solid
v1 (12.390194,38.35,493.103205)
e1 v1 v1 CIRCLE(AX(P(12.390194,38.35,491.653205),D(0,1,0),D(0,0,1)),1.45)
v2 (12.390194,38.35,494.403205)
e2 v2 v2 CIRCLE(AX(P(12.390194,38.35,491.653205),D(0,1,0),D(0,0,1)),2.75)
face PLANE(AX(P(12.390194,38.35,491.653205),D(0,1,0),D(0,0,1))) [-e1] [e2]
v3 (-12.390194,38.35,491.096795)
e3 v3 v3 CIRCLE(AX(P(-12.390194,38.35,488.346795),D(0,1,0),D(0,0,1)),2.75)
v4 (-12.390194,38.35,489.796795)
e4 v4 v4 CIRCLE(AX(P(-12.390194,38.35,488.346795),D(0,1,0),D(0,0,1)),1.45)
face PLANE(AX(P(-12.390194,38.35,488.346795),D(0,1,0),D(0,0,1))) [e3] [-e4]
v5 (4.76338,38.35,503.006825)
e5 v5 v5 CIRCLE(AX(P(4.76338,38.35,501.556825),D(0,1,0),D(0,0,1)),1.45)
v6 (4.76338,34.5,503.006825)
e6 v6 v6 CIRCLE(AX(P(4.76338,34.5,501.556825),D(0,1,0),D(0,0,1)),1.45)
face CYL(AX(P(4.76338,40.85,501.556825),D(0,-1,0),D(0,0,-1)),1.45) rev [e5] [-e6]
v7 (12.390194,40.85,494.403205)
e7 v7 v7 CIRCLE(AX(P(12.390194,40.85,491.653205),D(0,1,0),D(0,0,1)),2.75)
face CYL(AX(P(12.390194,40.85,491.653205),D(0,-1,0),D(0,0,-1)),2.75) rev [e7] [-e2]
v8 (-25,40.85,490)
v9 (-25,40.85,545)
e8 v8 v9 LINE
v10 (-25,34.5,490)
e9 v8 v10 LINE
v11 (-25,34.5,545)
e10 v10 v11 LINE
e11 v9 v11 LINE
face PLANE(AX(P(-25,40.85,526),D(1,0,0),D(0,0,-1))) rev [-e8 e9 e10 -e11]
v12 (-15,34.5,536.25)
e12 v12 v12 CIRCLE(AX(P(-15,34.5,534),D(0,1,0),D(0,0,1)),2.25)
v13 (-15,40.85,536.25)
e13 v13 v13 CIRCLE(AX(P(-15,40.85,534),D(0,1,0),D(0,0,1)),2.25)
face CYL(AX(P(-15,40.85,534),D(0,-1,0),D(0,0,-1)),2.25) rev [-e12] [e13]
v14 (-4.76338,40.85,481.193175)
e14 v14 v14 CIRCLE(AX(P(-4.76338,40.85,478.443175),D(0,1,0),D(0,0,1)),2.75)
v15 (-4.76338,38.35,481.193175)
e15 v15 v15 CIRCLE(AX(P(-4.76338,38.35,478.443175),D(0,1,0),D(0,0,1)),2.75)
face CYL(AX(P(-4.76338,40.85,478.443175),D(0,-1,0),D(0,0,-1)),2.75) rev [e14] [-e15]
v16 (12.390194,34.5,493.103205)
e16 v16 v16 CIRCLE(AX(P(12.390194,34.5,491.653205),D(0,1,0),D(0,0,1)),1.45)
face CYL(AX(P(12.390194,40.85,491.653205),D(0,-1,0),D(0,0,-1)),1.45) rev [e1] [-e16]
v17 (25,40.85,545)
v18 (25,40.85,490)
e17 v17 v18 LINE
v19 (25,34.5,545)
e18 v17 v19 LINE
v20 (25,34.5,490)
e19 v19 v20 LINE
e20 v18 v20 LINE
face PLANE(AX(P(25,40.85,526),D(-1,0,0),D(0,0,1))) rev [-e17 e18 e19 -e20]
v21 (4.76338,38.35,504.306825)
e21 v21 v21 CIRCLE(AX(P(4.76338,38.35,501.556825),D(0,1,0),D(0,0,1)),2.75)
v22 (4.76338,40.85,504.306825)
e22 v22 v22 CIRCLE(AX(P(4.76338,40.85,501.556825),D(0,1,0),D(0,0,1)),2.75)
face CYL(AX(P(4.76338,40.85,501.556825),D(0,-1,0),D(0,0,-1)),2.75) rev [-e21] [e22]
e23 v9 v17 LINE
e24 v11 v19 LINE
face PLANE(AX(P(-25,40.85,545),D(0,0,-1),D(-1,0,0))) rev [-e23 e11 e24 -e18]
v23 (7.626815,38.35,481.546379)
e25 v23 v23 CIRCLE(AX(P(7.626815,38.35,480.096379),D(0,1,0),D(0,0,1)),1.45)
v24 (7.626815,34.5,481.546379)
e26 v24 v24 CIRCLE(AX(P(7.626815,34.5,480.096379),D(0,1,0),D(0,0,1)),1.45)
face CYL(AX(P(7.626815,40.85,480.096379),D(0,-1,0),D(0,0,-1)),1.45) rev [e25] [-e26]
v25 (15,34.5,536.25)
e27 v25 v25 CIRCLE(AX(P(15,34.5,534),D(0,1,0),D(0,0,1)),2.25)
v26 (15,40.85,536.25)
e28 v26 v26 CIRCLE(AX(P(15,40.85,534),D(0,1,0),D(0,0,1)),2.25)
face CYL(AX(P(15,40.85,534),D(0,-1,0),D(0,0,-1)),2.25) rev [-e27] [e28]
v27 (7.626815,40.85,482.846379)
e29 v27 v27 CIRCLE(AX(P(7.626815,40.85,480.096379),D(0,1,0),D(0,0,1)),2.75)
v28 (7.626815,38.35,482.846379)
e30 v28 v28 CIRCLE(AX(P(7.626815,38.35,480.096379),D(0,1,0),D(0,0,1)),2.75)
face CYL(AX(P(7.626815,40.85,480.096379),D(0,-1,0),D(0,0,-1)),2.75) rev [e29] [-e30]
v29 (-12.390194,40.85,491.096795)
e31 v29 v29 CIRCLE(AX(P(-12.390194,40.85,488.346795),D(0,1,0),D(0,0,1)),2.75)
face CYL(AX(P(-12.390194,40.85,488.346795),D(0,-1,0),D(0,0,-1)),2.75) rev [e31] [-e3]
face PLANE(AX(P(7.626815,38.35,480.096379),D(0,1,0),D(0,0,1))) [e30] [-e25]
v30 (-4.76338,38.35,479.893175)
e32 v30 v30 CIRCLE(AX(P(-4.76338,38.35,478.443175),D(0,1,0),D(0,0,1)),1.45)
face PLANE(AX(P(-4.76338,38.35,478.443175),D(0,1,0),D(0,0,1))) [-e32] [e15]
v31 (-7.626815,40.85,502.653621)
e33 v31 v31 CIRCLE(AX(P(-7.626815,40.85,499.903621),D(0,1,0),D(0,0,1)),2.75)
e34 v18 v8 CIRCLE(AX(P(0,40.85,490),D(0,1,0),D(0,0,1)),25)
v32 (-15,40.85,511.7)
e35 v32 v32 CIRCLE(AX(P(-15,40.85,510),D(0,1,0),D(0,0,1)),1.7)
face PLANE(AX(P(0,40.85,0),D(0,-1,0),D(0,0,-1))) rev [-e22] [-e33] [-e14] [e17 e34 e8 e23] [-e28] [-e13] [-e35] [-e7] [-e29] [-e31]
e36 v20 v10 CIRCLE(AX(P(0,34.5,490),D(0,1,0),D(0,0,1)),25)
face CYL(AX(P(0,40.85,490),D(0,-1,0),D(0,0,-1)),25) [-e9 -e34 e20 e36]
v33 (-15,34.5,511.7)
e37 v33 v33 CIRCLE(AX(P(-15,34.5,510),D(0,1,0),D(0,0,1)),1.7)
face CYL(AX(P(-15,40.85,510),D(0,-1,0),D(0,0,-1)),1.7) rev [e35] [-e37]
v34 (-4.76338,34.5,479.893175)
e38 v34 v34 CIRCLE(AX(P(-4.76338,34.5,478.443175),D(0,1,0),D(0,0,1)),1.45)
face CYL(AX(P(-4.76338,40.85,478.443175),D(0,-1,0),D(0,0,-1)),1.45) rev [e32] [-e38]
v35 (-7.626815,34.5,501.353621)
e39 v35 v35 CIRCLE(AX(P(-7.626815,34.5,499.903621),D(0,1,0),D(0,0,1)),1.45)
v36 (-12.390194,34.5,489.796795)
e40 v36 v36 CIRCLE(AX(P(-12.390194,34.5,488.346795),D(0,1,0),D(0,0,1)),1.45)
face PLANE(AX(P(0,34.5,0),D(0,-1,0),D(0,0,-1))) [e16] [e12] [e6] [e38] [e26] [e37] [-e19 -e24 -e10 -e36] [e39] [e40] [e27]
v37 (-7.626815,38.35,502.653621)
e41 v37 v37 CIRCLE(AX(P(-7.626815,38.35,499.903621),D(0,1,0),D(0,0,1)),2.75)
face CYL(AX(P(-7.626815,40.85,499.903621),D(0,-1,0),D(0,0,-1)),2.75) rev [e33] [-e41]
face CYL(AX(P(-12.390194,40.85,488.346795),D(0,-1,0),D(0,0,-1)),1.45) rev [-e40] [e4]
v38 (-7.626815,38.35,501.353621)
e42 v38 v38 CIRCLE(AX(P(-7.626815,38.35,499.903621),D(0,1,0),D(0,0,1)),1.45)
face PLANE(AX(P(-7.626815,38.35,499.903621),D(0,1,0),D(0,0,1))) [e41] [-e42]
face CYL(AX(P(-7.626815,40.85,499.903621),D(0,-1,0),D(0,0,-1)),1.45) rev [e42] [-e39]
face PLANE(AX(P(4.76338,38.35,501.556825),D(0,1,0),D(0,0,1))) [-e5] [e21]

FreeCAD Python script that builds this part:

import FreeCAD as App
import Part
import Sketcher
Q = App.Units.Quantity


def add_polygon(sketch, points):
    """Adds a closed chain of lines whose ends are joined by coincident constraints."""
    first, n = sketch.GeometryCount, len(points)
    for a, b in zip(points, points[1:] + points[:1]):
        sketch.addGeometry(Part.LineSegment(App.Vector(*a, 0), App.Vector(*b, 0)), False)
    for i in range(n):
        sketch.addConstraint(Sketcher.Constraint("Coincident", first + i, 2, first + (i + 1) % n, 1))

doc = App.newDocument("Part")
body = doc.addObject("PartDesign::Body", "Body")

sketch1 = doc.addObject("Sketcher::SketchObject", "Sketch")
body.addObject(sketch1)
sketch1.AttachmentSupport = (doc.XZ_Plane, [""])
sketch1.MapMode = "FlatFace"
sketch1.AttachmentOffset = App.Placement(App.Vector(0, 0, -34.5), App.Rotation())
add_polygon(sketch1, [(-25, 490), (-25, 526), (25, 526), (25, 490)])
sketch1.addConstraint(Sketcher.Constraint("Vertical", 0))
sketch1.addConstraint(Sketcher.Constraint("Horizontal", 1))
sketch1.addConstraint(Sketcher.Constraint("Vertical", 2))
sketch1.addConstraint(Sketcher.Constraint("Horizontal", 3))
sketch1.addConstraint(Sketcher.Constraint("DistanceX", 1, 1, 1, 2, Q("50 mm")))
sketch1.addConstraint(Sketcher.Constraint("DistanceY", 0, 1, 0, 2, Q("36 mm")))
sketch1.addConstraint(Sketcher.Constraint("DistanceX", 0, 2, -1, 1, Q("25 mm")))
sketch1.addConstraint(Sketcher.Constraint("DistanceY", -1, 1, 0, 2, Q("526 mm")))
pad1 = doc.addObject("PartDesign::Pad", "Pad")
body.addObject(pad1)
pad1.Profile = sketch1
pad1.Length = 6.35
pad1.Reversed = True

sketch2 = doc.addObject("Sketcher::SketchObject", "Sketch001")
body.addObject(sketch2)
sketch2.AttachmentSupport = (doc.XZ_Plane, [""])
sketch2.MapMode = "FlatFace"
sketch2.AttachmentOffset = App.Placement(App.Vector(0, 0, -34.5), App.Rotation())
sketch2.addGeometry(Part.Circle(App.Vector(0, 490, 0), App.Vector(0, 0, 1), 25), False)
sketch2.addConstraint(Sketcher.Constraint("PointOnObject", 0, 3, -2))
sketch2.addConstraint(Sketcher.Constraint("Diameter", 0, Q("50 mm")))
sketch2.addConstraint(Sketcher.Constraint("DistanceY", -1, 1, 0, 3, Q("490 mm")))
pad2 = doc.addObject("PartDesign::Pad", "Pad001")
body.addObject(pad2)
pad2.Profile = sketch2
pad2.Length = 6.35
pad2.Reversed = True

sketch3 = doc.addObject("Sketcher::SketchObject", "Sketch002")
body.addObject(sketch3)
sketch3.AttachmentSupport = (doc.XZ_Plane, [""])
sketch3.MapMode = "FlatFace"
sketch3.AttachmentOffset = App.Placement(App.Vector(0, 0, -34.5), App.Rotation())
sketch3.addGeometry(Part.Circle(App.Vector(12.4, 491.7, 0), App.Vector(0, 0, 1), 1.4), False)
sketch3.addGeometry(Part.Circle(App.Vector(4.8, 501.6, 0), App.Vector(0, 0, 1), 1.4), False)
sketch3.addGeometry(Part.Circle(App.Vector(-7.6, 499.9, 0), App.Vector(0, 0, 1), 1.4), False)
sketch3.addGeometry(Part.Circle(App.Vector(-12.4, 488.3, 0), App.Vector(0, 0, 1), 1.4), False)
sketch3.addGeometry(Part.Circle(App.Vector(-4.8, 478.4, 0), App.Vector(0, 0, 1), 1.4), False)
sketch3.addGeometry(Part.Circle(App.Vector(7.6, 480.1, 0), App.Vector(0, 0, 1), 1.4), False)
sketch3.addConstraint(Sketcher.Constraint("Equal", 0, 1))
sketch3.addConstraint(Sketcher.Constraint("Equal", 1, 2))
sketch3.addConstraint(Sketcher.Constraint("Equal", 2, 3))
sketch3.addConstraint(Sketcher.Constraint("Equal", 3, 4))
sketch3.addConstraint(Sketcher.Constraint("Equal", 4, 5))
sketch3.addConstraint(Sketcher.Constraint("Diameter", 0, Q("2.9 mm")))
sketch3.addConstraint(Sketcher.Constraint("DistanceX", -1, 1, 1, 3, Q("4.76338 mm")))
sketch3.addConstraint(Sketcher.Constraint("DistanceY", -1, 1, 2, 3, Q("499.903621 mm")))
sketch3.addConstraint(Sketcher.Constraint("DistanceX", 4, 3, -1, 1, Q("4.76338 mm")))
sketch3.addConstraint(Sketcher.Constraint("DistanceY", -1, 1, 5, 3, Q("480.096379 mm")))
sketch3.addConstraint(Sketcher.Constraint("DistanceY", 0, 3, 1, 3, Q("9.903621 mm")))
sketch3.addConstraint(Sketcher.Constraint("DistanceX", 2, 3, 0, 3, Q("20.017009 mm")))
sketch3.addConstraint(Sketcher.Constraint("DistanceX", 3, 3, 2, 3, Q("4.76338 mm")))
sketch3.addConstraint(Sketcher.Constraint("DistanceY", 3, 3, 1, 3, Q("13.21003 mm")))
sketch3.addConstraint(Sketcher.Constraint("DistanceY", 4, 3, 3, 3, Q("9.903621 mm")))
sketch3.addConstraint(Sketcher.Constraint("DistanceX", 5, 3, 0, 3, Q("4.76338 mm")))
sketch3.addConstraint(Sketcher.Constraint("DistanceX", -1, 1, 0, 3, Q("12.390194 mm")))
sketch3.addConstraint(Sketcher.Constraint("DistanceY", -1, 1, 0, 3, Q("491.653205 mm")))
pocket1 = doc.addObject("PartDesign::Pocket", "Pocket")
body.addObject(pocket1)
pocket1.Profile = sketch3
pocket1.Length = 6.35

sketch4 = doc.addObject("Sketcher::SketchObject", "Sketch003")
body.addObject(sketch4)
sketch4.AttachmentSupport = (doc.XZ_Plane, [""])
sketch4.MapMode = "FlatFace"
sketch4.AttachmentOffset = App.Placement(App.Vector(0, 0, -38.35), App.Rotation())
sketch4.addGeometry(Part.Circle(App.Vector(12.4, 491.7, 0), App.Vector(0, 0, 1), 2.8), False)
sketch4.addGeometry(Part.Circle(App.Vector(4.8, 501.6, 0), App.Vector(0, 0, 1), 2.8), False)
sketch4.addGeometry(Part.Circle(App.Vector(-7.6, 499.9, 0), App.Vector(0, 0, 1), 2.8), False)
sketch4.addGeometry(Part.Circle(App.Vector(-12.4, 488.3, 0), App.Vector(0, 0, 1), 2.8), False)
sketch4.addGeometry(Part.Circle(App.Vector(-4.8, 478.4, 0), App.Vector(0, 0, 1), 2.8), False)
sketch4.addGeometry(Part.Circle(App.Vector(7.6, 480.1, 0), App.Vector(0, 0, 1), 2.8), False)
sketch4.addConstraint(Sketcher.Constraint("Equal", 0, 1))
sketch4.addConstraint(Sketcher.Constraint("Equal", 1, 2))
sketch4.addConstraint(Sketcher.Constraint("Equal", 2, 3))
sketch4.addConstraint(Sketcher.Constraint("Equal", 3, 4))
sketch4.addConstraint(Sketcher.Constraint("Equal", 4, 5))
sketch4.addConstraint(Sketcher.Constraint("Diameter", 0, Q("5.5 mm")))
sketch4.addConstraint(Sketcher.Constraint("DistanceX", -1, 1, 1, 3, Q("4.76338 mm")))
sketch4.addConstraint(Sketcher.Constraint("DistanceY", -1, 1, 2, 3, Q("499.903621 mm")))
sketch4.addConstraint(Sketcher.Constraint("DistanceX", 4, 3, -1, 1, Q("4.76338 mm")))
sketch4.addConstraint(Sketcher.Constraint("DistanceY", -1, 1, 5, 3, Q("480.096379 mm")))
sketch4.addConstraint(Sketcher.Constraint("DistanceY", 0, 3, 1, 3, Q("9.903621 mm")))
sketch4.addConstraint(Sketcher.Constraint("DistanceX", 2, 3, 0, 3, Q("20.017009 mm")))
sketch4.addConstraint(Sketcher.Constraint("DistanceX", 3, 3, 2, 3, Q("4.76338 mm")))
sketch4.addConstraint(Sketcher.Constraint("DistanceY", 3, 3, 1, 3, Q("13.21003 mm")))
sketch4.addConstraint(Sketcher.Constraint("DistanceY", 4, 3, 3, 3, Q("9.903621 mm")))
sketch4.addConstraint(Sketcher.Constraint("DistanceX", 5, 3, 0, 3, Q("4.76338 mm")))
sketch4.addConstraint(Sketcher.Constraint("DistanceX", -1, 1, 0, 3, Q("12.390194 mm")))
sketch4.addConstraint(Sketcher.Constraint("DistanceY", -1, 1, 0, 3, Q("491.653205 mm")))
pocket2 = doc.addObject("PartDesign::Pocket", "Pocket001")
body.addObject(pocket2)
pocket2.Profile = sketch4
pocket2.Length = 2.5

sketch5 = doc.addObject("Sketcher::SketchObject", "Sketch004")
body.addObject(sketch5)
sketch5.AttachmentSupport = (doc.XZ_Plane, [""])
sketch5.MapMode = "FlatFace"
sketch5.AttachmentOffset = App.Placement(App.Vector(0, 0, -34.5), App.Rotation())
add_polygon(sketch5, [(-25, 526), (-25, 545), (25, 545), (25, 526)])
sketch5.addConstraint(Sketcher.Constraint("Vertical", 0))
sketch5.addConstraint(Sketcher.Constraint("Horizontal", 1))
sketch5.addConstraint(Sketcher.Constraint("Vertical", 2))
sketch5.addConstraint(Sketcher.Constraint("Horizontal", 3))
sketch5.addConstraint(Sketcher.Constraint("DistanceX", 1, 1, 1, 2, Q("50 mm")))
sketch5.addConstraint(Sketcher.Constraint("DistanceY", 0, 1, 0, 2, Q("19 mm")))
sketch5.addConstraint(Sketcher.Constraint("DistanceX", 0, 2, -1, 1, Q("25 mm")))
sketch5.addConstraint(Sketcher.Constraint("DistanceY", -1, 1, 0, 2, Q("545 mm")))
pad3 = doc.addObject("PartDesign::Pad", "Pad002")
body.addObject(pad3)
pad3.Profile = sketch5
pad3.Length = 6.35
pad3.Reversed = True

sketch6 = doc.addObject("Sketcher::SketchObject", "Sketch005")
body.addObject(sketch6)
sketch6.AttachmentSupport = (doc.XZ_Plane, [""])
sketch6.MapMode = "FlatFace"
sketch6.AttachmentOffset = App.Placement(App.Vector(0, 0, -34.5), App.Rotation())
sketch6.addGeometry(Part.Circle(App.Vector(-15, 534, 0), App.Vector(0, 0, 1), 2.2), False)
sketch6.addGeometry(Part.Circle(App.Vector(15, 534, 0), App.Vector(0, 0, 1), 2.2), False)
sketch6.addConstraint(Sketcher.Constraint("Equal", 0, 1))
sketch6.addConstraint(Sketcher.Constraint("Symmetric", 0, 3, 1, 3, -2))
sketch6.addConstraint(Sketcher.Constraint("Diameter", 0, Q("4.5 mm")))
sketch6.addConstraint(Sketcher.Constraint("DistanceX", 0, 3, -1, 1, Q("15 mm")))
sketch6.addConstraint(Sketcher.Constraint("DistanceY", -1, 1, 0, 3, Q("534 mm")))
pocket3 = doc.addObject("PartDesign::Pocket", "Pocket002")
body.addObject(pocket3)
pocket3.Profile = sketch6
pocket3.Length = 6.35

sketch7 = doc.addObject("Sketcher::SketchObject", "Sketch006")
body.addObject(sketch7)
sketch7.AttachmentSupport = (doc.XZ_Plane, [""])
sketch7.MapMode = "FlatFace"
sketch7.AttachmentOffset = App.Placement(App.Vector(0, 0, -34.5), App.Rotation())
sketch7.addGeometry(Part.Circle(App.Vector(-15, 510, 0), App.Vector(0, 0, 1), 1.7), False)
sketch7.addConstraint(Sketcher.Constraint("Diameter", 0, Q("3.4 mm")))
sketch7.addConstraint(Sketcher.Constraint("DistanceX", 0, 3, -1, 1, Q("15 mm")))
sketch7.addConstraint(Sketcher.Constraint("DistanceY", -1, 1, 0, 3, Q("510 mm")))
pocket4 = doc.addObject("PartDesign::Pocket", "Pocket003")
body.addObject(pocket4)
pocket4.Profile = sketch7
pocket4.Length = 6.35

doc.recompute()
